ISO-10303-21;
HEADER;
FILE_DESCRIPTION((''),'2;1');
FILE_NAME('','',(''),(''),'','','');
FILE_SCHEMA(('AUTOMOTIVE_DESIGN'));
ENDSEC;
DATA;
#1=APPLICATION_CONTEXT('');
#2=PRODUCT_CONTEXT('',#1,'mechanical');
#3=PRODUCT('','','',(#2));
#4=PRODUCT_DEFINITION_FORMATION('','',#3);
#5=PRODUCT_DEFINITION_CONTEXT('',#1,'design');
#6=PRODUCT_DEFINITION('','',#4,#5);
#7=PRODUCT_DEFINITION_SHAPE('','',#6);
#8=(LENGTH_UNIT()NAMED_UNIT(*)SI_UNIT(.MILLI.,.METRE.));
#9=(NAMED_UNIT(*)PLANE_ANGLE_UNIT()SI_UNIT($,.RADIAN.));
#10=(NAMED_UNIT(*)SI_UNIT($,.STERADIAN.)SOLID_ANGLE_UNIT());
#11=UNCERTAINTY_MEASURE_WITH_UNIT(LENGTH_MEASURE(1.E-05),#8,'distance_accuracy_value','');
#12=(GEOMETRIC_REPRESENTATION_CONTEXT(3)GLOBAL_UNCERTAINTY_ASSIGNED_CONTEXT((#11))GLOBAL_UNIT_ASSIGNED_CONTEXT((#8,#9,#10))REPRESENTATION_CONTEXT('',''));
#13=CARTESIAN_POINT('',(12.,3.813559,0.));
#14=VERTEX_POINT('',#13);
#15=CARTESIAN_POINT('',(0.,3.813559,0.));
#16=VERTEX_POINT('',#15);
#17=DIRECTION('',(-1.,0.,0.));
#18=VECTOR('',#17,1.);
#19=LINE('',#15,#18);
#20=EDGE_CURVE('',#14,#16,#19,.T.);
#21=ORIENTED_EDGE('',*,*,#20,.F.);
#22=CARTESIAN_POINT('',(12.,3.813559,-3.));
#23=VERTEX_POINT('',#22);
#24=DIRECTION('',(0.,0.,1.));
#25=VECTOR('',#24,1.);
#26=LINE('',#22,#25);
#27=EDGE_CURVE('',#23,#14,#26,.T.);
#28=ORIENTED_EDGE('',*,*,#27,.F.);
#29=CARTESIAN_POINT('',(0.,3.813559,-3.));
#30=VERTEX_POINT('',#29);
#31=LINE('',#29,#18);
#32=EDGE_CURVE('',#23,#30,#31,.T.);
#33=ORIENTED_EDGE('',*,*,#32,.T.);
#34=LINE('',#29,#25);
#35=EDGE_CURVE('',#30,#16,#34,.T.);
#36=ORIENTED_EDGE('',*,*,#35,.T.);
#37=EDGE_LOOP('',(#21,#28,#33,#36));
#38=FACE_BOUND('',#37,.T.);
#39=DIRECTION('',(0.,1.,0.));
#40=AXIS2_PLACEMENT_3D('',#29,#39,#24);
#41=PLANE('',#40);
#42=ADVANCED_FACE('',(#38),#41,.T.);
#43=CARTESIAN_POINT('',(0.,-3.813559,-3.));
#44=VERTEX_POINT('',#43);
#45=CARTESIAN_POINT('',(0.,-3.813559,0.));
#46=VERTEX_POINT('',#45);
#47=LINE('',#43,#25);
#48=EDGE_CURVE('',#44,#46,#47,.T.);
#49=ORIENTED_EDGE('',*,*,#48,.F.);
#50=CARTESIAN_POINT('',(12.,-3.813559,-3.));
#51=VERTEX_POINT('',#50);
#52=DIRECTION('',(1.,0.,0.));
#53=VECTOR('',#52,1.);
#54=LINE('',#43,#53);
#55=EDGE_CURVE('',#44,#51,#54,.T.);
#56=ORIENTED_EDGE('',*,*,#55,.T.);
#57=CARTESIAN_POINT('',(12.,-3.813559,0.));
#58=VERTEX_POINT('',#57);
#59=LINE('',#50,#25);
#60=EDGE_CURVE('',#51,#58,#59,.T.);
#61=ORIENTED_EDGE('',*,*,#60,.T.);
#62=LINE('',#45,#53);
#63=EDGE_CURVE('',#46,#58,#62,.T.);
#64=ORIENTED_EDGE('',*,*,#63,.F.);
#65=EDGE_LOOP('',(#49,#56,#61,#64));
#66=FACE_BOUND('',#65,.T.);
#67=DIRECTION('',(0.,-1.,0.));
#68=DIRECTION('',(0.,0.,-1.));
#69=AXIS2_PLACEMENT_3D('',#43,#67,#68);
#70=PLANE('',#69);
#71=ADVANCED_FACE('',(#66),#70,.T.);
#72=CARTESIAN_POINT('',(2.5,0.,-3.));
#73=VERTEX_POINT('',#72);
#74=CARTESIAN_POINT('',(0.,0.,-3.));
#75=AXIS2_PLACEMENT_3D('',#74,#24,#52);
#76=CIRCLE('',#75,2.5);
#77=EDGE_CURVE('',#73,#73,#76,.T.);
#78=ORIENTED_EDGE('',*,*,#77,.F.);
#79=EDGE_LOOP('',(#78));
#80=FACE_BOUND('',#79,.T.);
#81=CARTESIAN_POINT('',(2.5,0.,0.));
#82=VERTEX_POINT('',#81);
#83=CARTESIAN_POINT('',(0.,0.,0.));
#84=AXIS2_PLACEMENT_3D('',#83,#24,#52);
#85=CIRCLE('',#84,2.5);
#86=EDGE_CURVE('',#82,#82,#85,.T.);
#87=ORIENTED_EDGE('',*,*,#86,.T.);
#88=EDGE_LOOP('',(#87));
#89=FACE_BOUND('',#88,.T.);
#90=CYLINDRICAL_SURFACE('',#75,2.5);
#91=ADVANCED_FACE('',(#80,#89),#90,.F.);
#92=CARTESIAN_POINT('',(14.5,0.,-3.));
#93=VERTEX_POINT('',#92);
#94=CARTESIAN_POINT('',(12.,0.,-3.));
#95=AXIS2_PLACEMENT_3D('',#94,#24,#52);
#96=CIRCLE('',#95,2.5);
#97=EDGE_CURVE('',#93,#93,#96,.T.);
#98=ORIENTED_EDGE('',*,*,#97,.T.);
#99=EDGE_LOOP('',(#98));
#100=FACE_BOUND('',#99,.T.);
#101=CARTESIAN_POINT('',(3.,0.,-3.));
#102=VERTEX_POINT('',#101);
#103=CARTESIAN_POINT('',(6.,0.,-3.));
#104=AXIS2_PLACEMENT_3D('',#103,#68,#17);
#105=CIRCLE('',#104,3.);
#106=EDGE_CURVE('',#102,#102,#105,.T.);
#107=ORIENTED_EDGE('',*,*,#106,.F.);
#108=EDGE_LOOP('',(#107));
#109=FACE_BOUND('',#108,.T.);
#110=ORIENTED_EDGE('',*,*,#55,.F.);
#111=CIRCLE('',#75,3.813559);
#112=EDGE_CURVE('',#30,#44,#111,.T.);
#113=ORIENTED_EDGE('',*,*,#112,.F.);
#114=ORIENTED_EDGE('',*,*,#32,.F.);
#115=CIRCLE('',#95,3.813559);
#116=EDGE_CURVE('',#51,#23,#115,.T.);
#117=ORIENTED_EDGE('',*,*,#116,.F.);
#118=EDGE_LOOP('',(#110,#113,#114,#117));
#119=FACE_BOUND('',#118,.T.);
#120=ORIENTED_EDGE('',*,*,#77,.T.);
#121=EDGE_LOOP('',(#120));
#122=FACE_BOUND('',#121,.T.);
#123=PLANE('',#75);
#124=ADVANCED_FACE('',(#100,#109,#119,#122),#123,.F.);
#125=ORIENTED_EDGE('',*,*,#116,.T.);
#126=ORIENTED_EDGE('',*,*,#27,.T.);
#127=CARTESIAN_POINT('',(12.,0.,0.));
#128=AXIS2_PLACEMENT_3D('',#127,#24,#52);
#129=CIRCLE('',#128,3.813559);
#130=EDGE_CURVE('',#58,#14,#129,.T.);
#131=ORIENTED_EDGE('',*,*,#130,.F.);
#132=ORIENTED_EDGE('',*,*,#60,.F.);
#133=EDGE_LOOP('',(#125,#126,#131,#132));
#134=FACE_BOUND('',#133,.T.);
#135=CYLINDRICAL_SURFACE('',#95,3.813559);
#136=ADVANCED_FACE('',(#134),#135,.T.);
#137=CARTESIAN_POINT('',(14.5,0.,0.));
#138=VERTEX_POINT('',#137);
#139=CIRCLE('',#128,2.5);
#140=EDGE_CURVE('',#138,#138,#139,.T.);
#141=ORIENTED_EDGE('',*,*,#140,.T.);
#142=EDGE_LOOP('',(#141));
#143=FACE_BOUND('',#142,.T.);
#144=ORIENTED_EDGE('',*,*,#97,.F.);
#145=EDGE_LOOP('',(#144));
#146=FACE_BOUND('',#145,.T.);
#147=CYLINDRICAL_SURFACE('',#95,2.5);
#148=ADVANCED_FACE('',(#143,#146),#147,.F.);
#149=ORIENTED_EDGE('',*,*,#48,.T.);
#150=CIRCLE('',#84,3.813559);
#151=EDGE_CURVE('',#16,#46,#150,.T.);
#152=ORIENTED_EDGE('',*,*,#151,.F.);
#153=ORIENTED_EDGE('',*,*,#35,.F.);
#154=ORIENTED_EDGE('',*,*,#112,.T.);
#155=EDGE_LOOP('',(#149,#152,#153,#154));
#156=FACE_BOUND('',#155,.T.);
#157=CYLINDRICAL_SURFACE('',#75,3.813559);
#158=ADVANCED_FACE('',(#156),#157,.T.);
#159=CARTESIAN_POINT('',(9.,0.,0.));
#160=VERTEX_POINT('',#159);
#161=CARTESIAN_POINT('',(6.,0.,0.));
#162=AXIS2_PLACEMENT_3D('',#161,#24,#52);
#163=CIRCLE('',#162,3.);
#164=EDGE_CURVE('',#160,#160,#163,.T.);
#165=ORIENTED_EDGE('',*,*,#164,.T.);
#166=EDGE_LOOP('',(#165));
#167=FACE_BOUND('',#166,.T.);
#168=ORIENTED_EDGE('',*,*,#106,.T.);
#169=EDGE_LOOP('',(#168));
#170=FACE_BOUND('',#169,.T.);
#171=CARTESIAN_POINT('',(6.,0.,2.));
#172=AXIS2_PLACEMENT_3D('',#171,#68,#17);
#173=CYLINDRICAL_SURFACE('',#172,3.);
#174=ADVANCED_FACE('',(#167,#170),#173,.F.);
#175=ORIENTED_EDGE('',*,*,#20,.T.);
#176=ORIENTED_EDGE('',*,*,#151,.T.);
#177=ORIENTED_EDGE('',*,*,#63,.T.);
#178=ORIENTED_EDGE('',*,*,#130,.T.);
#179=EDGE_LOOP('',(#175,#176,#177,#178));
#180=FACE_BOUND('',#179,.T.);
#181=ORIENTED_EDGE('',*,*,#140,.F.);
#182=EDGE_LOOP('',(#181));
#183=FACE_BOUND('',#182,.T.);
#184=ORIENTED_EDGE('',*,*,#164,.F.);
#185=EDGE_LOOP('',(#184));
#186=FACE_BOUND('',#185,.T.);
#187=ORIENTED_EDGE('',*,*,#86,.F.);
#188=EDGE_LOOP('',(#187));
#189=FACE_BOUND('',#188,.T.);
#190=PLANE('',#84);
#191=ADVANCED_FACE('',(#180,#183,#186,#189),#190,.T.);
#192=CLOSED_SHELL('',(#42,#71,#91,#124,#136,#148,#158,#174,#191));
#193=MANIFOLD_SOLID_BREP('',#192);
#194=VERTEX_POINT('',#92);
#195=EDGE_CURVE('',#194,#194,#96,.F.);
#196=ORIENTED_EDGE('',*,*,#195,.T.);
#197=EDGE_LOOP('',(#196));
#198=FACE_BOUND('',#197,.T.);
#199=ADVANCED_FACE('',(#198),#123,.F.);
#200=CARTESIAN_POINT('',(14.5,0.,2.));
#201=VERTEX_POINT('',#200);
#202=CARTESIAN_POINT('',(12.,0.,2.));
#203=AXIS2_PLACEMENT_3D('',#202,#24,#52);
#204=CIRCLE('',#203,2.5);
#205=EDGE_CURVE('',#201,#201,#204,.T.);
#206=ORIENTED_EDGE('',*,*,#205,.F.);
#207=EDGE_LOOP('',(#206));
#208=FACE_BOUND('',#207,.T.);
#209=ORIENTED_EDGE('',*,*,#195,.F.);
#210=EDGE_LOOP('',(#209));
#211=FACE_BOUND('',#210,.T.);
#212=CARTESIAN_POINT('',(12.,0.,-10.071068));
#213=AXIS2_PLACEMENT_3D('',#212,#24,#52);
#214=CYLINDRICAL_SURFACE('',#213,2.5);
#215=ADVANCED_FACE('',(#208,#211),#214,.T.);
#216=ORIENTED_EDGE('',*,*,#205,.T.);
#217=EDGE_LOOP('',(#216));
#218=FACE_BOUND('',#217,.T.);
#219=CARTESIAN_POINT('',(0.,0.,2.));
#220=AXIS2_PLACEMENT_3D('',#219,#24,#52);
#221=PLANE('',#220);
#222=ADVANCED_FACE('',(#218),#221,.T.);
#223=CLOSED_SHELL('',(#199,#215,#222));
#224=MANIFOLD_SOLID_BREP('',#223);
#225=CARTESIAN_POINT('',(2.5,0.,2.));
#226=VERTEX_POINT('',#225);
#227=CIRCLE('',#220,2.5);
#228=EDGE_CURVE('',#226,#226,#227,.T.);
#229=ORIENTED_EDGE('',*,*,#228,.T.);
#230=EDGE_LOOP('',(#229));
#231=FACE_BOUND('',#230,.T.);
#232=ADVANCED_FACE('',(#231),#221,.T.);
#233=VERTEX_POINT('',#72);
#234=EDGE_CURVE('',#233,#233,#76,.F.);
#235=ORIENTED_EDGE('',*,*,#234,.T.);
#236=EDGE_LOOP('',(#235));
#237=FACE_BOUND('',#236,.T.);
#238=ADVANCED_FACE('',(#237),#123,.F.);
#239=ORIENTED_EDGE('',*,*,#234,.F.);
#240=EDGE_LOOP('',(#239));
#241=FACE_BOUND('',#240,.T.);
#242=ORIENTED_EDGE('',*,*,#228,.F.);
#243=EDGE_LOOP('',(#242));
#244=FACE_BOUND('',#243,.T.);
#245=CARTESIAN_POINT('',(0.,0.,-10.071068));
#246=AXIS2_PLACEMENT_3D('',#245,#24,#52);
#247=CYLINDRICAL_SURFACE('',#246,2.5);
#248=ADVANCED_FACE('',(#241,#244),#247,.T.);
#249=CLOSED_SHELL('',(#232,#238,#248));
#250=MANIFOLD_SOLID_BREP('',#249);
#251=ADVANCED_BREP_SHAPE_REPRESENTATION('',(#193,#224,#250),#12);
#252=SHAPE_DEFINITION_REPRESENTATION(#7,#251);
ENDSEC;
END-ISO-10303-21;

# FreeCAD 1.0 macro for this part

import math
import FreeCAD as App
import Part
import Sketcher

V = App.Vector

doc = App.newDocument("Part")
params = doc.addObject("Spreadsheet::Sheet", "Params")
for row, (alias, value) in enumerate([
    ("sketch1_diameter", "5 mm"),
    ("sketch1_width", "12 mm"),
    ("pad1_length", "3 mm"),
    ("sketch2_diameter", "6 mm"),
    ("sketch3_diameter", "5 mm"),
    ("pad2_length", "2 mm"),
    ("pad2_length2", "3 mm"),
    ("sketch4_diameter", "5 mm"),
    ("pad3_length", "2 mm"),
    ("pad3_length2", "3 mm"),
], start=1):
    params.set(f"A{row}", alias)
    params.set(f"B{row}", "=" + value)
    params.setAlias(f"B{row}", alias)

body = doc.addObject("PartDesign::Body", "Body")

# Sketch on XY plane
sketch1 = body.newObject("Sketcher::SketchObject", "Sketch")
sketch1.AttachmentSupport = (doc.getObject("XY_Plane"), [""])
sketch1.MapMode = "FlatFace"
sketch1.addGeometry(Part.LineSegment(V(12, 3.8, 0), V(0, 3.8, 0)), False)
sketch1.addGeometry(Part.ArcOfCircle(Part.Circle(V(0, 0, 0), V(0, 0, 1), 3.8), math.radians(90), math.radians(270)), False)
sketch1.addGeometry(Part.LineSegment(V(0, -3.8, 0), V(12, -3.8, 0)), False)
sketch1.addGeometry(Part.ArcOfCircle(Part.Circle(V(12, 0, 0), V(0, 0, 1), 3.8), math.radians(-90), math.radians(90)), False)
sketch1.addGeometry(Part.Circle(V(12, 0, 0), V(0, 0, 1), 2.5), False)
sketch1.addGeometry(Part.Circle(V(0, 0, 0), V(0, 0, 1), 2.5), False)
sketch1.addConstraint(Sketcher.Constraint("Tangent", 0, 2, 1, 1))
sketch1.addConstraint(Sketcher.Constraint("Tangent", 1, 2, 2, 1))
sketch1.addConstraint(Sketcher.Constraint("Tangent", 2, 2, 3, 1))
sketch1.addConstraint(Sketcher.Constraint("Tangent", 3, 2, 0, 1))
sketch1.addConstraint(Sketcher.Constraint("Horizontal", 0))
sketch1.addConstraint(Sketcher.Constraint("Horizontal", 2))
sketch1.addConstraint(Sketcher.Constraint("Coincident", 1, 3, -1, 1))
sketch1.addConstraint(Sketcher.Constraint("Coincident", 5, 3, -1, 1))
sketch1.addConstraint(Sketcher.Constraint("Coincident", 4, 3, 3, 3))
sketch1.addConstraint(Sketcher.Constraint("Equal", 4, 5))
sketch1.addConstraint(Sketcher.Constraint("Diameter", 4, 5.0))
sketch1.addConstraint(Sketcher.Constraint("DistanceX", 0, 2, 0, 1, 12.0))
sketch1.addConstraint(Sketcher.Constraint("Radius", 1, 3.813559))
sketch1.setExpression("Constraints[10]", "Params.sketch1_diameter")
sketch1.setExpression("Constraints[11]", "Params.sketch1_width")
pad1 = body.newObject("PartDesign::Pad", "Pad")
pad1.Profile = sketch1
pad1.setExpression("Length", "Params.pad1_length")
pad1.Reversed = True

# Sketch on XY plane
sketch2 = body.newObject("Sketcher::SketchObject", "Sketch001")
sketch2.AttachmentSupport = (doc.getObject("XY_Plane"), [""])
sketch2.MapMode = "FlatFace"
sketch2.AttachmentOffset = App.Placement(V(0, 0, -3), App.Rotation())
sketch2.addGeometry(Part.Circle(V(6, 0, 0), V(0, 0, 1), 3), False)
sketch2.addConstraint(Sketcher.Constraint("PointOnObject", 0, 3, -1))
sketch2.addConstraint(Sketcher.Constraint("Diameter", 0, 6.0))
sketch2.addConstraint(Sketcher.Constraint("DistanceX", -1, 1, 0, 3, 6.0))
sketch2.setExpression("Constraints[1]", "Params.sketch2_diameter")
pocket1 = body.newObject("PartDesign::Pocket", "Pocket")
pocket1.Profile = sketch2
pocket1.Type = "ThroughAll"
pocket1.Reversed = True
body2 = doc.addObject("PartDesign::Body", "Body001")

# Sketch on XY plane
sketch3 = body2.newObject("Sketcher::SketchObject", "Sketch002")
sketch3.AttachmentSupport = (doc.getObject("XY_Plane001"), [""])
sketch3.MapMode = "FlatFace"
sketch3.addGeometry(Part.Circle(V(0, 0, 0), V(0, 0, 1), 2.5), False)
sketch3.addConstraint(Sketcher.Constraint("Coincident", 0, 3, -1, 1))
sketch3.addConstraint(Sketcher.Constraint("Diameter", 0, 5.0))
sketch3.setExpression("Constraints[1]", "Params.sketch3_diameter")
pad2 = body2.newObject("PartDesign::Pad", "Pad001")
pad2.Profile = sketch3
pad2.Type = "TwoLengths"
pad2.setExpression("Length", "Params.pad2_length")
pad2.setExpression("Length2", "Params.pad2_length2")
body3 = doc.addObject("PartDesign::Body", "Body002")

# Sketch on XY plane
sketch4 = body3.newObject("Sketcher::SketchObject", "Sketch003")
sketch4.AttachmentSupport = (doc.getObject("XY_Plane002"), [""])
sketch4.MapMode = "FlatFace"
sketch4.addGeometry(Part.Circle(V(12, 0, 0), V(0, 0, 1), 2.5), False)
sketch4.addConstraint(Sketcher.Constraint("PointOnObject", 0, 3, -1))
sketch4.addConstraint(Sketcher.Constraint("Diameter", 0, 5.0))
sketch4.addConstraint(Sketcher.Constraint("DistanceX", -1, 1, 0, 3, 12.0))
sketch4.setExpression("Constraints[1]", "Params.sketch4_diameter")
pad3 = body3.newObject("PartDesign::Pad", "Pad002")
pad3.Profile = sketch4
pad3.Type = "TwoLengths"
pad3.setExpression("Length", "Params.pad3_length")
pad3.setExpression("Length2", "Params.pad3_length2")

doc.recompute()
